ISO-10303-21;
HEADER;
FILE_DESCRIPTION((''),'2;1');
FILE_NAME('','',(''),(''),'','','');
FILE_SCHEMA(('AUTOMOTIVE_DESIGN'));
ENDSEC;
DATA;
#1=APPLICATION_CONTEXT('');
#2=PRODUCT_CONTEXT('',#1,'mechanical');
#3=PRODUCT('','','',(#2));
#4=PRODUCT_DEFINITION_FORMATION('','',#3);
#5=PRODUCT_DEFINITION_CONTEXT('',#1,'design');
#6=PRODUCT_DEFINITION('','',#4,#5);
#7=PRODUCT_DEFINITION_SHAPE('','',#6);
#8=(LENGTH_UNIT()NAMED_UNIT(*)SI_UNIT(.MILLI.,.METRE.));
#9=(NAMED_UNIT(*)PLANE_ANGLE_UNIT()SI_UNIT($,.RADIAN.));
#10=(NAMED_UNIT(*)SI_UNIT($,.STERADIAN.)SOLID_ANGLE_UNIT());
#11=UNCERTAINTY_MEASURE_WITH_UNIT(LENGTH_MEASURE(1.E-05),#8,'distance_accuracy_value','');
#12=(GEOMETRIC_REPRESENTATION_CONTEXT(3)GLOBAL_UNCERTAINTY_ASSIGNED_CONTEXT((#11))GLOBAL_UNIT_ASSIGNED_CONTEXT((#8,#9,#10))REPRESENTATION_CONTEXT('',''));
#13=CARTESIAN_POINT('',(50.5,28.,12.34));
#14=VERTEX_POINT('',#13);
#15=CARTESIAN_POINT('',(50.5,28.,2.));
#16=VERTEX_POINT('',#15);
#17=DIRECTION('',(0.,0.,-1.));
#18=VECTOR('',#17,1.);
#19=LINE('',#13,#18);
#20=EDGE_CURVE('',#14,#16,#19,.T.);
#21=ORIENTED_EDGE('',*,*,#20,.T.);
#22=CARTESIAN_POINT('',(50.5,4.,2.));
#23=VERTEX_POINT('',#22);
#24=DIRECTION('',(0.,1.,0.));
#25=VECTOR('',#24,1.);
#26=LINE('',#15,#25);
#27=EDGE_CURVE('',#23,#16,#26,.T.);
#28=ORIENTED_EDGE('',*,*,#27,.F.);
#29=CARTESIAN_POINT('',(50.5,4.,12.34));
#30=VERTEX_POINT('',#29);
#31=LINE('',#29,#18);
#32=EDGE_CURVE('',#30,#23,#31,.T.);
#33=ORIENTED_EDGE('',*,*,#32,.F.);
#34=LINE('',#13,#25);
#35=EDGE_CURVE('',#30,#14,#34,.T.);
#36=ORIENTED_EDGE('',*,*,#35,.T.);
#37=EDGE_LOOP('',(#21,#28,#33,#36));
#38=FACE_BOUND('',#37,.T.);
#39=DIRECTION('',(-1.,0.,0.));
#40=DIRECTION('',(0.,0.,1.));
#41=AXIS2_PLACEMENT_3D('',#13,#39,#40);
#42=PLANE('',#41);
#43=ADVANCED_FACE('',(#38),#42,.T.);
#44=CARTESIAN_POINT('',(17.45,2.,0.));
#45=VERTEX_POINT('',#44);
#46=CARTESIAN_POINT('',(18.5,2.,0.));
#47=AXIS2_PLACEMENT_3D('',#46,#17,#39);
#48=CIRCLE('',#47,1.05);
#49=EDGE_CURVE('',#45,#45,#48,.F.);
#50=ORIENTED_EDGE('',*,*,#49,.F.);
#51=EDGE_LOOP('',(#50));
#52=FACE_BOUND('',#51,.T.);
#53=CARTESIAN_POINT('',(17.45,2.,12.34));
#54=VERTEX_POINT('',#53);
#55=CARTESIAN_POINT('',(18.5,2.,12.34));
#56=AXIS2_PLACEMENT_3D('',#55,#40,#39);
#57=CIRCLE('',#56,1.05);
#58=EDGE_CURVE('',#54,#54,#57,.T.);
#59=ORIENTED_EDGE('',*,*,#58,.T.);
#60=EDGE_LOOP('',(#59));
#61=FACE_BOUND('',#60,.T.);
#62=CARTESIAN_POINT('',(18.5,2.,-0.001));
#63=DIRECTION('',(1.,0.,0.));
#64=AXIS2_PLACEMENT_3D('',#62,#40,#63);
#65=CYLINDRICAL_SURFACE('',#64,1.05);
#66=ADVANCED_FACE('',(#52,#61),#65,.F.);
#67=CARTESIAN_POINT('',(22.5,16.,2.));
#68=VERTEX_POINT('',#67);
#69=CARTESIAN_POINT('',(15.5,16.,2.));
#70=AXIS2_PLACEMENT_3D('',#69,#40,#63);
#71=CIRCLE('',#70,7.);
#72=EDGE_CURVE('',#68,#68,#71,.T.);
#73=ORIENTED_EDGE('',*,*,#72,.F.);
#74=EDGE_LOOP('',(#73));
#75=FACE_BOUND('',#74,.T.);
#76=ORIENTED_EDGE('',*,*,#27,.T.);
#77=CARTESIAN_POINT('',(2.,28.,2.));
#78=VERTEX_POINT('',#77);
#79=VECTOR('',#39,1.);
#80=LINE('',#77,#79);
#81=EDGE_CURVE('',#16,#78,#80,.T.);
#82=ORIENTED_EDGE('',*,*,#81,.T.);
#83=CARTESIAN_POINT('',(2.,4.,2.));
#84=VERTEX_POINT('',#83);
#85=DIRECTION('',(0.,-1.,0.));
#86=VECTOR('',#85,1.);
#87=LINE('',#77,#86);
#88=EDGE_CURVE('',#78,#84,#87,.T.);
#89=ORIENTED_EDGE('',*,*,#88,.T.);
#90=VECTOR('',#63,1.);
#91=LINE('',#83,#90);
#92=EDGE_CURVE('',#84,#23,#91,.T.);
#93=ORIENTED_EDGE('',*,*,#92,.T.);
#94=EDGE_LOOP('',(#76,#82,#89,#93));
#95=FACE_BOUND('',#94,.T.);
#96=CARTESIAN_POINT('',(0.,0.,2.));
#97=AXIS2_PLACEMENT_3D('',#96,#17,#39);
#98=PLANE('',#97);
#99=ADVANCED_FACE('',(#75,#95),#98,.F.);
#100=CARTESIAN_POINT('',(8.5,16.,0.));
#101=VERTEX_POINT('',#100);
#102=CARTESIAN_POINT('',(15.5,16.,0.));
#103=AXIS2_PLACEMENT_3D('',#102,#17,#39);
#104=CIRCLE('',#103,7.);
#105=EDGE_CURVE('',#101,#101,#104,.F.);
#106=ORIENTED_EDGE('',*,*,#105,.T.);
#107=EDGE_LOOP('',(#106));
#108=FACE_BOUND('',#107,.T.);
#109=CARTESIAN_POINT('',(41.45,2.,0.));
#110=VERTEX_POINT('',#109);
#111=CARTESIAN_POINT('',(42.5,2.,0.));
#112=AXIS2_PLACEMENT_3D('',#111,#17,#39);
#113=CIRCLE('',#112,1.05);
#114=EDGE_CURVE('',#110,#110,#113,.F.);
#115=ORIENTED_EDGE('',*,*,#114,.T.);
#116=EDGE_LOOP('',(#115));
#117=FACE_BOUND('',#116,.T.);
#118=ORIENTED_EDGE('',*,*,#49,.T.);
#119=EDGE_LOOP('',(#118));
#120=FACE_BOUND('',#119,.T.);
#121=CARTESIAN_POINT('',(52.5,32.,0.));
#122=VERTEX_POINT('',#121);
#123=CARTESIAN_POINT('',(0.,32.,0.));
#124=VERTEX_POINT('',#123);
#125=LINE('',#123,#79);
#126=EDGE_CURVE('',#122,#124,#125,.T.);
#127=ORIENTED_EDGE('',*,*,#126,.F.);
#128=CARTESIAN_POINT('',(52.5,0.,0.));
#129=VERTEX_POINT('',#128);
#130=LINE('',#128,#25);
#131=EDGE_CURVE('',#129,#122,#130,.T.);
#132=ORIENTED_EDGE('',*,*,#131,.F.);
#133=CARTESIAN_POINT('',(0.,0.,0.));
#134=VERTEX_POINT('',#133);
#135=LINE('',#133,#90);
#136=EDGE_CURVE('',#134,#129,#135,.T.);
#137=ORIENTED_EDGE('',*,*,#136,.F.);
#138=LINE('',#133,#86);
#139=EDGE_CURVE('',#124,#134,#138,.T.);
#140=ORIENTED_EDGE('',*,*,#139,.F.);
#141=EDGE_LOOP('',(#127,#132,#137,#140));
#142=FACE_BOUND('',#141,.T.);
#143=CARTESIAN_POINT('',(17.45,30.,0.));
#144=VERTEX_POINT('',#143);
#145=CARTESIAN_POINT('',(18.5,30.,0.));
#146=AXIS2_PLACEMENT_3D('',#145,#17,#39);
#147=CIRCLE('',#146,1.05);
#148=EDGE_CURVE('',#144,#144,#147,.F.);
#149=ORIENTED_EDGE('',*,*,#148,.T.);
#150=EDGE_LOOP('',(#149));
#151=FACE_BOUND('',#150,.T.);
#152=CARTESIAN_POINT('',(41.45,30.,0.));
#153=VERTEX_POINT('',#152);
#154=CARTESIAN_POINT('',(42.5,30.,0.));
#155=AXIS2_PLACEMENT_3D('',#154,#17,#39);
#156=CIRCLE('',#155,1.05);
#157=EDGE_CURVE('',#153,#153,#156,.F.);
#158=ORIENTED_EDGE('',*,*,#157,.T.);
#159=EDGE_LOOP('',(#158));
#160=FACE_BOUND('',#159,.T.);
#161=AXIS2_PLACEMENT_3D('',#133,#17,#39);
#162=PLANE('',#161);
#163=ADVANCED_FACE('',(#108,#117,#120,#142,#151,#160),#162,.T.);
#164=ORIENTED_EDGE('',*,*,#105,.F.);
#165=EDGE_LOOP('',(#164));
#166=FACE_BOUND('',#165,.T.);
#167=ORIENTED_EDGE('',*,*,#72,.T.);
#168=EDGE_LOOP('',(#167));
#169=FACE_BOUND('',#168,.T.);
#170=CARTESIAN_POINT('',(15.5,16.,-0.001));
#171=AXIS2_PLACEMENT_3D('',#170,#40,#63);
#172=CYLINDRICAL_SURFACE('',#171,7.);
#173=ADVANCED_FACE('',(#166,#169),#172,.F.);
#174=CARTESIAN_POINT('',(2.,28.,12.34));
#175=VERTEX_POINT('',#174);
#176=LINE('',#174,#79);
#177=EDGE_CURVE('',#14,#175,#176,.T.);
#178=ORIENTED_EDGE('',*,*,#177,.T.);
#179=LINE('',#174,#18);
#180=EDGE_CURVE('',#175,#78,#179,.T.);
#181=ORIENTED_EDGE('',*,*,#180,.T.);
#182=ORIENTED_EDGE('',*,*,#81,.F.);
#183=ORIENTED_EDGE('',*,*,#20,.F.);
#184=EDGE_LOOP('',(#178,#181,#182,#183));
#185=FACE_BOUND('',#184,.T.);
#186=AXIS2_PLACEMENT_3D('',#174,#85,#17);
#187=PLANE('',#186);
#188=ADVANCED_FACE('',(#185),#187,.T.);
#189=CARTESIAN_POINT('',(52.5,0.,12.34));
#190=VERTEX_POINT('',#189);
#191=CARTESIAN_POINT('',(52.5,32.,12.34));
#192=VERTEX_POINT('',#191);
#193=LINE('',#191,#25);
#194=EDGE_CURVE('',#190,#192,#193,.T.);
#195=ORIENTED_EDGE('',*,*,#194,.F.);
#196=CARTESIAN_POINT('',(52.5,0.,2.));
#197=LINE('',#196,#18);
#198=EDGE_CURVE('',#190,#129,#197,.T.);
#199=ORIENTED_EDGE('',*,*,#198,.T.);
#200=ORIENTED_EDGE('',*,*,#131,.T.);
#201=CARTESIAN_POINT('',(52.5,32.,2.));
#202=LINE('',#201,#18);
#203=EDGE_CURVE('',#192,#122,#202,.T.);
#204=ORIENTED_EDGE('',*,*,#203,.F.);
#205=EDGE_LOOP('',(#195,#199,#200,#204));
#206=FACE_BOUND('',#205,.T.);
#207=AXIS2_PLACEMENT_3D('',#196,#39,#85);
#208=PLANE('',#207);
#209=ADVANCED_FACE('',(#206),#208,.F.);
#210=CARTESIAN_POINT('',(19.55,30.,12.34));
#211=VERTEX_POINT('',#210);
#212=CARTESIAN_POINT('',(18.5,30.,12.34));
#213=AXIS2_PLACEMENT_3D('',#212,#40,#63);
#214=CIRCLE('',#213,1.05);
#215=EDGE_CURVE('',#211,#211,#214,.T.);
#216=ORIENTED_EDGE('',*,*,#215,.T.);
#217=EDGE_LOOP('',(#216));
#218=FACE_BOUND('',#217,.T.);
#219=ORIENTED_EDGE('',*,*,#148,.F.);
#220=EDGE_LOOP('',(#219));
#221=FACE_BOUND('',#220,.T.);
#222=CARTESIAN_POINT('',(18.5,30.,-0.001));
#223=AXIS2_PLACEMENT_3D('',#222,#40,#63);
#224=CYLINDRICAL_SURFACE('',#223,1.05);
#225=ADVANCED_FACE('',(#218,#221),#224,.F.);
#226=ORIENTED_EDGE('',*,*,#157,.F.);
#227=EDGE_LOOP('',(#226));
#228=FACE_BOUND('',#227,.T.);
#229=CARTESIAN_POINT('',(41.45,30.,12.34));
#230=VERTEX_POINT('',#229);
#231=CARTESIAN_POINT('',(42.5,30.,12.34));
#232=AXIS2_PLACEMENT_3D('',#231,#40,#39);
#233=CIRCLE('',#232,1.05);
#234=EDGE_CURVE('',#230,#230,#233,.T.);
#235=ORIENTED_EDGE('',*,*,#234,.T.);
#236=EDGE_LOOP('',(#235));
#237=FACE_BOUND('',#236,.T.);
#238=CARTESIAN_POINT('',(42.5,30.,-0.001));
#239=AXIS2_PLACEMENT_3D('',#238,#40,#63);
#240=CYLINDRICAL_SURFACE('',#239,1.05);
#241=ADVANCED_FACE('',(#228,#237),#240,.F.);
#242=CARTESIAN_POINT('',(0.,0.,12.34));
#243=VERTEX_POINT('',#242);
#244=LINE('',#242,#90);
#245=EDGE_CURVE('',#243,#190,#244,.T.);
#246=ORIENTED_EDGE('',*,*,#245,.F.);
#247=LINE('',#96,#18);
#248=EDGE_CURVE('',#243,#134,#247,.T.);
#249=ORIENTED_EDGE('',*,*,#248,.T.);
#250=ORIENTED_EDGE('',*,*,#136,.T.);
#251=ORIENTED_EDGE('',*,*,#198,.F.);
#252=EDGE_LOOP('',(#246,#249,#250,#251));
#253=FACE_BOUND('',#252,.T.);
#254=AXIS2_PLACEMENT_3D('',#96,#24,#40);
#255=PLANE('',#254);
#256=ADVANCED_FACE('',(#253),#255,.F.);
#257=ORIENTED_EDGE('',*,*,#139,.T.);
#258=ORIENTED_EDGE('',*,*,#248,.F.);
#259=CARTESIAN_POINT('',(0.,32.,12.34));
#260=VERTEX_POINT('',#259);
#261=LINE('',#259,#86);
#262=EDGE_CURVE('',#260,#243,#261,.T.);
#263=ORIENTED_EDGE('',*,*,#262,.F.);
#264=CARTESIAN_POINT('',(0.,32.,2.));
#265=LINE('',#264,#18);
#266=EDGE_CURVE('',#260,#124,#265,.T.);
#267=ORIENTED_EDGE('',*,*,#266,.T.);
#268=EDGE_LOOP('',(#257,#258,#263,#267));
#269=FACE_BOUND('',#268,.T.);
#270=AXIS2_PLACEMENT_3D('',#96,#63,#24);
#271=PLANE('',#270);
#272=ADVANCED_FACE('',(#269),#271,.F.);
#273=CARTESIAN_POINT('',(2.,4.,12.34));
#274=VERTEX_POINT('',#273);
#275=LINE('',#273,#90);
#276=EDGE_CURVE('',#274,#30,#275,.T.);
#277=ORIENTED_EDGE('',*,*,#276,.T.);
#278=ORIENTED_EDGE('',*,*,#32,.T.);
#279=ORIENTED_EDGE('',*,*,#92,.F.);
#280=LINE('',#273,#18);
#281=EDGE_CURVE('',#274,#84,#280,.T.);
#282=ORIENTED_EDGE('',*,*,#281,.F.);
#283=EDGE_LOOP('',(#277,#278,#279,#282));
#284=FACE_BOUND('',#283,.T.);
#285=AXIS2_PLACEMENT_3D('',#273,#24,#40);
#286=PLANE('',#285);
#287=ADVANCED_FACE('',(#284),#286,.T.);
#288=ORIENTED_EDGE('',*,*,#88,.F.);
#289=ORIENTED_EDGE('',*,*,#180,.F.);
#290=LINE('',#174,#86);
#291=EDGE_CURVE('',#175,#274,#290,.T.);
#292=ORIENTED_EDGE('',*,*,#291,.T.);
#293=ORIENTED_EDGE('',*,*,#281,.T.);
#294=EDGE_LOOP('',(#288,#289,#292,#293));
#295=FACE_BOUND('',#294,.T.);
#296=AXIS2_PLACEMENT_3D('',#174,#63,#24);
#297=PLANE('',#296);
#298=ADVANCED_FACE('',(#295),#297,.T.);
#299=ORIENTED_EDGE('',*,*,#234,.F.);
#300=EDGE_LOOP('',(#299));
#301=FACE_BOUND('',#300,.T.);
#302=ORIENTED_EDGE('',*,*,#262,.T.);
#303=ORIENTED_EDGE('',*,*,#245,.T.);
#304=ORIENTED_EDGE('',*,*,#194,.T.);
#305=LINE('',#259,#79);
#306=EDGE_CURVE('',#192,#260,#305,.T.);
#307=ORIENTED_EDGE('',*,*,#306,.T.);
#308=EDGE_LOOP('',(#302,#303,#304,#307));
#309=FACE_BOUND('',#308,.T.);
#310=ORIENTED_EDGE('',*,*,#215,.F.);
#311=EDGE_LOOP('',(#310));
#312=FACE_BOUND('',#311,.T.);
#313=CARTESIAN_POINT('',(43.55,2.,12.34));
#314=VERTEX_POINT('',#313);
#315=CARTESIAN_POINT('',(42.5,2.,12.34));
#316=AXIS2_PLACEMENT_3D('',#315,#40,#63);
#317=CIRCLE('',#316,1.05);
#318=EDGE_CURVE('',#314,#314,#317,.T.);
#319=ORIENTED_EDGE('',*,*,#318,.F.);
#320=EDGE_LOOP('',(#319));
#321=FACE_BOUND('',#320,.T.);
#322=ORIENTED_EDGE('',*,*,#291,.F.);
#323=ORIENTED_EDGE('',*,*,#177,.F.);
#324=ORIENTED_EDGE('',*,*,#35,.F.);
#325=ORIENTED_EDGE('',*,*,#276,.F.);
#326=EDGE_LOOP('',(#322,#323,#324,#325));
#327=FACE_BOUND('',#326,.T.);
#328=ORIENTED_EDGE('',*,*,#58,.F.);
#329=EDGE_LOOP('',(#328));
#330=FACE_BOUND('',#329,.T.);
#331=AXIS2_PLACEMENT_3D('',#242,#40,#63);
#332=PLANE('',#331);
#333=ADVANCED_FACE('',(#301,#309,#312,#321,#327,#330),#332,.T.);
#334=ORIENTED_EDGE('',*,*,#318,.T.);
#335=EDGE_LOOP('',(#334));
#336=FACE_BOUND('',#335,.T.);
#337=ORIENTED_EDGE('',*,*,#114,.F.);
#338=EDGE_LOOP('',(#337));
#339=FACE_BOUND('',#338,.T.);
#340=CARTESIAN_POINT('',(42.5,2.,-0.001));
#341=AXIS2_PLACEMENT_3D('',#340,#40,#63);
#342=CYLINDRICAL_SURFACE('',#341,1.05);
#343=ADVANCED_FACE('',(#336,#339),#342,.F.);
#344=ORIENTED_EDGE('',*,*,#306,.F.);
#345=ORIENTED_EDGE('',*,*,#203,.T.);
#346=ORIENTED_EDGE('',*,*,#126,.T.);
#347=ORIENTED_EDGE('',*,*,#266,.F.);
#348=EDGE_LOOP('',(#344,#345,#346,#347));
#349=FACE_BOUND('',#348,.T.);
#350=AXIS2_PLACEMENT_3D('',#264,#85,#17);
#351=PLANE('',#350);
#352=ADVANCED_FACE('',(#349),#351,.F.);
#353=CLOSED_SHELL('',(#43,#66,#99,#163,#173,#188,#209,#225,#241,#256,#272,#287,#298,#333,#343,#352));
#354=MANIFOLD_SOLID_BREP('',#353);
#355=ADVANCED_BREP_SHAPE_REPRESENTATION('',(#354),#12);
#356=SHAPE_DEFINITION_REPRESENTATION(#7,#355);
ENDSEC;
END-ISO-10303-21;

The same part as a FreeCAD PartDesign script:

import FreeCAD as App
import Part
import Sketcher

V = App.Vector

doc = App.newDocument("Part")
body = doc.addObject("PartDesign::Body", "Body")

sketch1 = body.newObject("Sketcher::SketchObject", "Sketch")
sketch1.AttachmentSupport = (doc.getObject("XY_Plane"), [""])
sketch1.MapMode = "FlatFace"
sketch1.addGeometry(Part.LineSegment(V(0, 32, 0), V(0, 0, 0)), False)
sketch1.addGeometry(Part.LineSegment(V(0, 0, 0), V(52.5, 0, 0)), False)
sketch1.addGeometry(Part.LineSegment(V(52.5, 0, 0), V(52.5, 32, 0)), False)
sketch1.addGeometry(Part.LineSegment(V(52.5, 32, 0), V(0, 32, 0)), False)
sketch1.addConstraint(Sketcher.Constraint("Coincident", 0, 2, 1, 1))
sketch1.addConstraint(Sketcher.Constraint("Coincident", 1, 2, 2, 1))
sketch1.addConstraint(Sketcher.Constraint("Coincident", 2, 2, 3, 1))
sketch1.addConstraint(Sketcher.Constraint("Coincident", 3, 2, 0, 1))
sketch1.addConstraint(Sketcher.Constraint("Vertical", 0))
sketch1.addConstraint(Sketcher.Constraint("Horizontal", 1))
sketch1.addConstraint(Sketcher.Constraint("Vertical", 2))
sketch1.addConstraint(Sketcher.Constraint("Horizontal", 3))
sketch1.addConstraint(Sketcher.Constraint("Coincident", 0, 2, -1, 1))
sketch1.addConstraint(Sketcher.Constraint("DistanceY", 0, 2, 0, 1, 32.0))
sketch1.addConstraint(Sketcher.Constraint("DistanceX", 1, 1, 1, 2, 52.5))
pad1 = body.newObject("PartDesign::Pad", "Pad")
pad1.Profile = sketch1
pad1.Length = 2

sketch2 = body.newObject("Sketcher::SketchObject", "Sketch001")
sketch2.AttachmentSupport = (doc.getObject("XY_Plane"), [""])
sketch2.MapMode = "FlatFace"
sketch2.AttachmentOffset = App.Placement(V(0, 0, 2), App.Rotation())
sketch2.addGeometry(Part.LineSegment(V(0, 32, 0), V(0, 0, 0)), False)
sketch2.addGeometry(Part.LineSegment(V(0, 0, 0), V(52.5, 0, 0)), False)
sketch2.addGeometry(Part.LineSegment(V(52.5, 0, 0), V(52.5, 32, 0)), False)
sketch2.addGeometry(Part.LineSegment(V(52.5, 32, 0), V(0, 32, 0)), False)
sketch2.addGeometry(Part.LineSegment(V(50.5, 4, 0), V(2, 4, 0)), False)
sketch2.addGeometry(Part.LineSegment(V(2, 4, 0), V(2, 28, 0)), False)
sketch2.addGeometry(Part.LineSegment(V(2, 28, 0), V(50.5, 28, 0)), False)
sketch2.addGeometry(Part.LineSegment(V(50.5, 28, 0), V(50.5, 4, 0)), False)
sketch2.addConstraint(Sketcher.Constraint("Coincident", 0, 2, 1, 1))
sketch2.addConstraint(Sketcher.Constraint("Coincident", 1, 2, 2, 1))
sketch2.addConstraint(Sketcher.Constraint("Coincident", 2, 2, 3, 1))
sketch2.addConstraint(Sketcher.Constraint("Coincident", 3, 2, 0, 1))
sketch2.addConstraint(Sketcher.Constraint("Coincident", 4, 2, 5, 1))
sketch2.addConstraint(Sketcher.Constraint("Coincident", 5, 2, 6, 1))
sketch2.addConstraint(Sketcher.Constraint("Coincident", 6, 2, 7, 1))
sketch2.addConstraint(Sketcher.Constraint("Coincident", 7, 2, 4, 1))
sketch2.addConstraint(Sketcher.Constraint("Vertical", 0))
sketch2.addConstraint(Sketcher.Constraint("Horizontal", 1))
sketch2.addConstraint(Sketcher.Constraint("Vertical", 2))
sketch2.addConstraint(Sketcher.Constraint("Horizontal", 3))
sketch2.addConstraint(Sketcher.Constraint("Horizontal", 4))
sketch2.addConstraint(Sketcher.Constraint("Vertical", 5))
sketch2.addConstraint(Sketcher.Constraint("Horizontal", 6))
sketch2.addConstraint(Sketcher.Constraint("Vertical", 7))
sketch2.addConstraint(Sketcher.Constraint("Coincident", 0, 2, -1, 1))
sketch2.addConstraint(Sketcher.Constraint("DistanceY", 0, 2, 0, 1, 32.0))
sketch2.addConstraint(Sketcher.Constraint("DistanceY", 5, 1, 5, 2, 24.0))
sketch2.addConstraint(Sketcher.Constraint("DistanceX", 1, 1, 1, 2, 52.5))
sketch2.addConstraint(Sketcher.Constraint("DistanceX", 4, 2, 4, 1, 48.5))
sketch2.addConstraint(Sketcher.Constraint("DistanceX", -1, 1, 4, 2, 2.0))
sketch2.addConstraint(Sketcher.Constraint("DistanceY", -1, 1, 4, 2, 4.0))
pad2 = body.newObject("PartDesign::Pad", "Pad001")
pad2.Profile = sketch2
pad2.Length = 10.34

sketch3 = body.newObject("Sketcher::SketchObject", "Sketch002")
sketch3.AttachmentSupport = (doc.getObject("XY_Plane"), [""])
sketch3.MapMode = "FlatFace"
sketch3.AttachmentOffset = App.Placement(V(0, 0, 2), App.Rotation())
sketch3.addGeometry(Part.Circle(V(15.5, 16, 0), V(0, 0, 1), 7), False)
sketch3.addConstraint(Sketcher.Constraint("Diameter", 0, 14.0))
sketch3.addConstraint(Sketcher.Constraint("DistanceY", -1, 1, 0, 3, 16.0))
sketch3.addConstraint(Sketcher.Constraint("DistanceX", -1, 1, 0, 3, 15.5))
pocket1 = body.newObject("PartDesign::Pocket", "Pocket")
pocket1.Profile = sketch3
pocket1.Type = "UpToFirst"

sketch4 = body.newObject("Sketcher::SketchObject", "Sketch003")
sketch4.AttachmentSupport = (doc.getObject("XY_Plane"), [""])
sketch4.MapMode = "FlatFace"
sketch4.AttachmentOffset = App.Placement(V(0, 0, 12.34), App.Rotation())
sketch4.addGeometry(Part.Circle(V(18.5, 30, 0), V(0, 0, 1), 1.05), False)
sketch4.addConstraint(Sketcher.Constraint("Diameter", 0, 2.1))
sketch4.addConstraint(Sketcher.Constraint("DistanceY", -1, 1, 0, 3, 30.0))
sketch4.addConstraint(Sketcher.Constraint("DistanceX", -1, 1, 0, 3, 18.5))
pocket2 = body.newObject("PartDesign::Pocket", "Pocket001")
pocket2.Profile = sketch4
pocket2.Type = "UpToFirst"

sketch5 = body.newObject("Sketcher::SketchObject", "Sketch004")
sketch5.AttachmentSupport = (doc.getObject("XY_Plane"), [""])
sketch5.MapMode = "FlatFace"
sketch5.AttachmentOffset = App.Placement(V(0, 0, 12.34), App.Rotation())
sketch5.addGeometry(Part.Circle(V(42.5, 30, 0), V(0, 0, 1), 1.05), False)
sketch5.addConstraint(Sketcher.Constraint("Diameter", 0, 2.1))
sketch5.addConstraint(Sketcher.Constraint("DistanceY", -1, 1, 0, 3, 30.0))
sketch5.addConstraint(Sketcher.Constraint("DistanceX", -1, 1, 0, 3, 42.5))
pocket3 = body.newObject("PartDesign::Pocket", "Pocket002")
pocket3.Profile = sketch5
pocket3.Type = "UpToFirst"

sketch6 = body.newObject("Sketcher::SketchObject", "Sketch005")
sketch6.AttachmentSupport = (doc.getObject("XY_Plane"), [""])
sketch6.MapMode = "FlatFace"
sketch6.AttachmentOffset = App.Placement(V(0, 0, 12.34), App.Rotation())
sketch6.addGeometry(Part.Circle(V(42.5, 2, 0), V(0, 0, 1), 1.05), False)
sketch6.addConstraint(Sketcher.Constraint("Diameter", 0, 2.1))
sketch6.addConstraint(Sketcher.Constraint("DistanceY", -1, 1, 0, 3, 2.0))
sketch6.addConstraint(Sketcher.Constraint("DistanceX", -1, 1, 0, 3, 42.5))
pocket4 = body.newObject("PartDesign::Pocket", "Pocket003")
pocket4.Profile = sketch6
pocket4.Type = "UpToFirst"

sketch7 = body.newObject("Sketcher::SketchObject", "Sketch006")
sketch7.AttachmentSupport = (doc.getObject("XY_Plane"), [""])
sketch7.MapMode = "FlatFace"
sketch7.AttachmentOffset = App.Placement(V(0, 0, 12.34), App.Rotation())
sketch7.addGeometry(Part.Circle(V(18.5, 2, 0), V(0, 0, 1), 1.05), False)
sketch7.addConstraint(Sketcher.Constraint("Diameter", 0, 2.1))
sketch7.addConstraint(Sketcher.Constraint("DistanceY", -1, 1, 0, 3, 2.0))
sketch7.addConstraint(Sketcher.Constraint("DistanceX", -1, 1, 0, 3, 18.5))
pocket5 = body.newObject("PartDesign::Pocket", "Pocket004")
pocket5.Profile = sketch7
pocket5.Type = "UpToFirst"

doc.recompute()
